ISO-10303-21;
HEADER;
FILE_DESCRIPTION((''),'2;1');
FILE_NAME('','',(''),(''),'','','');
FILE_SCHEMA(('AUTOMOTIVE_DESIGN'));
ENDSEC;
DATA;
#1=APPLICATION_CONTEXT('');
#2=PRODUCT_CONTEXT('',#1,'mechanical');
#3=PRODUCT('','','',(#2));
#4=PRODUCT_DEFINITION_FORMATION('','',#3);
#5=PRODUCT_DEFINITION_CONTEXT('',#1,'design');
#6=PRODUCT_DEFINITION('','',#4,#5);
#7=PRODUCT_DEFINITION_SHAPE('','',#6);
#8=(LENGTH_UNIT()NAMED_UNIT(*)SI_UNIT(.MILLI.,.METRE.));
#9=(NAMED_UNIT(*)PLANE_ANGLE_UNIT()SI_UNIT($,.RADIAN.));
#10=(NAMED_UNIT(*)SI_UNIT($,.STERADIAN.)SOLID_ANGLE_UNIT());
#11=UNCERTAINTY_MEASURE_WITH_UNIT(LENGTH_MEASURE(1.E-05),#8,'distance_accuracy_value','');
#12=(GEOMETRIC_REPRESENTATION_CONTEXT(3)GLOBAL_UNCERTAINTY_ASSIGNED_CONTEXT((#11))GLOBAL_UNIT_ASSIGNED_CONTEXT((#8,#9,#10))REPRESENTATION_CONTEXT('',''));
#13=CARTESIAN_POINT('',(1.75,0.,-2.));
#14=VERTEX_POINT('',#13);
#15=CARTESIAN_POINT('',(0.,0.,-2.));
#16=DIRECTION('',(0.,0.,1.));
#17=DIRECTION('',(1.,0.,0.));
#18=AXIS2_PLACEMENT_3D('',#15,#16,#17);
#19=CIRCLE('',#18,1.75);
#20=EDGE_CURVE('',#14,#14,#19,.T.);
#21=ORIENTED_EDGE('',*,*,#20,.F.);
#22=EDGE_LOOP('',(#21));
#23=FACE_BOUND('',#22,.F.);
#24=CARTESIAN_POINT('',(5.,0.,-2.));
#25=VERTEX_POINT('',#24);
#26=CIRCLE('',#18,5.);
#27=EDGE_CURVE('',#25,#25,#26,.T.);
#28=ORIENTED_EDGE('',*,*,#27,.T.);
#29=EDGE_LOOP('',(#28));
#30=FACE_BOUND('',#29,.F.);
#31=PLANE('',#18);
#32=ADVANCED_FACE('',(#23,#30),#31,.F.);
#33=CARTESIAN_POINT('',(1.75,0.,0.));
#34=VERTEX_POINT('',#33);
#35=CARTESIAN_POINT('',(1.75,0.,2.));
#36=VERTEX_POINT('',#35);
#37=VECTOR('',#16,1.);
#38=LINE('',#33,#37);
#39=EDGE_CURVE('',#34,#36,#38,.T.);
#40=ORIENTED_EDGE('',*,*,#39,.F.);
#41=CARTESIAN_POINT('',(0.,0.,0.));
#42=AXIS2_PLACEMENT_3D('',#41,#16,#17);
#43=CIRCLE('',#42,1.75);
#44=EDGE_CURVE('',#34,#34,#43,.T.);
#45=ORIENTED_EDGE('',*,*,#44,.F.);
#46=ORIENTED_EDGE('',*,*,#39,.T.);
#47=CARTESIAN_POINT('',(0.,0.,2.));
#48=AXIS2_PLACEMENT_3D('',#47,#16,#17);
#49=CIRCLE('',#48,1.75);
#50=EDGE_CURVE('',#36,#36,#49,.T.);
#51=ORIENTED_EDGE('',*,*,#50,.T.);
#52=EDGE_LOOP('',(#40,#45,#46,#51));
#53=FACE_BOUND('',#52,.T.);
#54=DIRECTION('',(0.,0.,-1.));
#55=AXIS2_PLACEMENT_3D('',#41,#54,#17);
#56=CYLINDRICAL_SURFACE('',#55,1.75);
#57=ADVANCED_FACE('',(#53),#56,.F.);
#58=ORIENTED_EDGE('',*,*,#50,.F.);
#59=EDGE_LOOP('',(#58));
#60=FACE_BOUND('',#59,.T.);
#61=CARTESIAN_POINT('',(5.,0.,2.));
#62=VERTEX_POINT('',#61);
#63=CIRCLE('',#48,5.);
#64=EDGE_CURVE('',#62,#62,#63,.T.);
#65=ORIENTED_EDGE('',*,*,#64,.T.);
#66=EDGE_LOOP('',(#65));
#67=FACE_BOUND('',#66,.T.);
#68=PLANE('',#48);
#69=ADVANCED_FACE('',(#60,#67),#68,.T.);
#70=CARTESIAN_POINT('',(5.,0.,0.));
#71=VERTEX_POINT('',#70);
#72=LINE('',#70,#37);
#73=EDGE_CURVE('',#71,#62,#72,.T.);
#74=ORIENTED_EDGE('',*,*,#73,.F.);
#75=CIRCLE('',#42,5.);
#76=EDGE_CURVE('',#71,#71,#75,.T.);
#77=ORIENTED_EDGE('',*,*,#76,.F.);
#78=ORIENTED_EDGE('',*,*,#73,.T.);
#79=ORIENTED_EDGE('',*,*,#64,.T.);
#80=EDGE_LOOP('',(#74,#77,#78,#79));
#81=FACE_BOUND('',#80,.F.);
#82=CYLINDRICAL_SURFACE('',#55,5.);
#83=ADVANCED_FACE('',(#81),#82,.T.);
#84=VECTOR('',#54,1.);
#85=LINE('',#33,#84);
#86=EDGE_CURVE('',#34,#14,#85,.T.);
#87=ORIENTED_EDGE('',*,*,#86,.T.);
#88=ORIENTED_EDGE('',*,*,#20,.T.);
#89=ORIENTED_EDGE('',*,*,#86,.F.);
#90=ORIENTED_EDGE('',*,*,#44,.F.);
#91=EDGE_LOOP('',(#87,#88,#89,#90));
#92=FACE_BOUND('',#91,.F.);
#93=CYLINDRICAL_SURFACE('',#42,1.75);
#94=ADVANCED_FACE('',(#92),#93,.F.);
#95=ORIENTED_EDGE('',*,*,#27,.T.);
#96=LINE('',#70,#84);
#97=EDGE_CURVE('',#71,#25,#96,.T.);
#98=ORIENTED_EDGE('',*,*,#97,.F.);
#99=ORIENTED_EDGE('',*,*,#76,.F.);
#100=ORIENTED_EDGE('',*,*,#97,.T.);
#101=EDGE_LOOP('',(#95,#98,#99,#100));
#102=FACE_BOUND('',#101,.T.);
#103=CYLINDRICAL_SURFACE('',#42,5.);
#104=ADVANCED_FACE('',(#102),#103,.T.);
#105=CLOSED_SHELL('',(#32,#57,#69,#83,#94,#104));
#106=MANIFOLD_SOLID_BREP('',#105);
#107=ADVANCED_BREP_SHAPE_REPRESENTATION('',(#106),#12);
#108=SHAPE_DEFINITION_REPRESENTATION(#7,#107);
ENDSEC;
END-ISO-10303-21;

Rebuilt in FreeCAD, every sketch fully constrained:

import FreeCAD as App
import Part
import Sketcher

V = App.Vector

doc = App.newDocument("Part")
body = doc.addObject("PartDesign::Body", "Body")

# Sketch on XY plane
sketch1 = body.newObject("Sketcher::SketchObject", "Sketch")
sketch1.AttachmentSupport = (doc.getObject("XY_Plane"), [""])
sketch1.MapMode = "FlatFace"
sketch1.addGeometry([
    Part.Circle(V(0, 0, 0), V(0, 0, 1), 5),
    Part.Circle(V(0, 0, 0), V(0, 0, 1), 1.75),
], False)
sketch1.addConstraint([
    Sketcher.Constraint("Coincident", 0, 3, -1, 1),
    Sketcher.Constraint("Coincident", 1, 3, -1, 1),
    Sketcher.Constraint("Diameter", 0, 10.0),
    Sketcher.Constraint("Diameter", 1, 3.5),
])
pad1 = body.newObject("PartDesign::Pad", "Pad")
pad1.Profile = sketch1
pad1.Length = 4
pad1.Midplane = True

doc.recompute()
